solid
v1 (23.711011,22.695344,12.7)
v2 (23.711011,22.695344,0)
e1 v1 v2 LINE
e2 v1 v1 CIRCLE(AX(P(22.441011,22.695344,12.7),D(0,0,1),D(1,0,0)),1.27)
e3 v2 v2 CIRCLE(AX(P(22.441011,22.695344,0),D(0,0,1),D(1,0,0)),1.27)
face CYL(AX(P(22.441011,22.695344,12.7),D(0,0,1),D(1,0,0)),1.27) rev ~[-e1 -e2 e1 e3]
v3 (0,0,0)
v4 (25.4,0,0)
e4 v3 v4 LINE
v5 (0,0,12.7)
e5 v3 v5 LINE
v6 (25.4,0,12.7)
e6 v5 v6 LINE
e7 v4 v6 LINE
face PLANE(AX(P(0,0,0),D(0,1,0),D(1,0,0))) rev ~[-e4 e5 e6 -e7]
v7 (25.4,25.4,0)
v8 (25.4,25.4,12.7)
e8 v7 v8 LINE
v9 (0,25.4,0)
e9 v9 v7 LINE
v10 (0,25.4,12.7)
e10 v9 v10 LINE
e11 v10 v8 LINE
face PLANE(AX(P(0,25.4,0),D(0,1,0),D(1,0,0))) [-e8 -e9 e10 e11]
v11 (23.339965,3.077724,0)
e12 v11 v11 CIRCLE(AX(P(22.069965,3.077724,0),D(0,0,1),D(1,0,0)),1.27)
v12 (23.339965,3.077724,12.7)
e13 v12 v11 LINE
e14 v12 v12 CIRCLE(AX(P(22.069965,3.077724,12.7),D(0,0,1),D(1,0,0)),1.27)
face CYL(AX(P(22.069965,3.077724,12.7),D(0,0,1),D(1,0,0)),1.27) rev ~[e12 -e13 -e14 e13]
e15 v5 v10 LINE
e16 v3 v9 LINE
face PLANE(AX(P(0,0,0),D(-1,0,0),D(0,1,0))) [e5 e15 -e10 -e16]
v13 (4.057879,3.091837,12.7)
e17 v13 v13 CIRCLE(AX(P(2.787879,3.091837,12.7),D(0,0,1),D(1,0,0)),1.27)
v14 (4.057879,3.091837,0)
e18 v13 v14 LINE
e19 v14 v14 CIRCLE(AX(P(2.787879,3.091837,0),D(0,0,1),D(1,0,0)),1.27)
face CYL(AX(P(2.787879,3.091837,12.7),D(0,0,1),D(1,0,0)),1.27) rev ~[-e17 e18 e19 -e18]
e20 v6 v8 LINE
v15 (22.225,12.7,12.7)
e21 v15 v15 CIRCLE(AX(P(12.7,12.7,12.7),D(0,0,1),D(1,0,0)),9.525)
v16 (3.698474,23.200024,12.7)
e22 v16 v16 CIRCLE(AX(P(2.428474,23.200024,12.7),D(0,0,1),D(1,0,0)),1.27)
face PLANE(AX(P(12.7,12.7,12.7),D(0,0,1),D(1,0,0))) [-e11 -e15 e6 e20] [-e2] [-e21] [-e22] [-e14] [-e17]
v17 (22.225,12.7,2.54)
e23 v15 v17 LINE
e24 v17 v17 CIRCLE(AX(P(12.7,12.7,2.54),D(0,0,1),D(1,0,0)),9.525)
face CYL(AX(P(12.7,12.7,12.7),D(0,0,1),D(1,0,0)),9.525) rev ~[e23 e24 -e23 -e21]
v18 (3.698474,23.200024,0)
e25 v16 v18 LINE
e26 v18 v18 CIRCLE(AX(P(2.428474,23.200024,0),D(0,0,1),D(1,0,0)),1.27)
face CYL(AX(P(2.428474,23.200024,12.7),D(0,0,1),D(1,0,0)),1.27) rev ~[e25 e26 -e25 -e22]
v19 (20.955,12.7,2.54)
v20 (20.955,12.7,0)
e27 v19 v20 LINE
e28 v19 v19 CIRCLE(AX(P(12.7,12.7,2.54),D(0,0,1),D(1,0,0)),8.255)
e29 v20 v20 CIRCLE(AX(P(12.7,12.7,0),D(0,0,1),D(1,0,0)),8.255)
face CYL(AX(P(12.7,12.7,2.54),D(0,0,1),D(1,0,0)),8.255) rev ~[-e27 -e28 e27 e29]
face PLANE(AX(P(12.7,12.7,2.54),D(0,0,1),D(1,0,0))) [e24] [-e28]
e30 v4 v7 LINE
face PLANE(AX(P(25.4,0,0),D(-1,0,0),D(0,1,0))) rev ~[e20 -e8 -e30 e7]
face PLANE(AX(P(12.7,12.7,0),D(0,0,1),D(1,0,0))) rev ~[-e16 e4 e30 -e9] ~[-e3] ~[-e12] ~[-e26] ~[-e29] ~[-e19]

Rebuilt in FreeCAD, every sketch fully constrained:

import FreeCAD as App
import Part
import Sketcher
from FreeCAD import Vector
Q = App.Units.Quantity


def add_polygon(sketch, points):
    """Adds a closed chain of lines whose ends are joined by coincident constraints."""
    first, n = sketch.GeometryCount, len(points)
    for a, b in zip(points, points[1:] + points[:1]):
        sketch.addGeometry(Part.LineSegment(App.Vector(*a, 0), App.Vector(*b, 0)), False)
    for i in range(n):
        sketch.addConstraint(Sketcher.Constraint("Coincident", first + i, 2, first + (i + 1) % n, 1))

doc = App.newDocument("Part")
body = doc.addObject("PartDesign::Body", "Body")

# Sketch on XY plane
sketch1 = doc.addObject("Sketcher::SketchObject", "Sketch")
body.addObject(sketch1)
sketch1.AttachmentSupport = (doc.XY_Plane, [""])
sketch1.MapMode = "FlatFace"
add_polygon(sketch1, [(0, 25), (0, 0), (25, 0), (25, 25)])  # lines 0-3
sketch1.addConstraint([
    Sketcher.Constraint("Vertical", 0),
    Sketcher.Constraint("Horizontal", 1),
    Sketcher.Constraint("Vertical", 2),
    Sketcher.Constraint("Horizontal", 3),
    Sketcher.Constraint("Coincident", 0, 2, -1, 1),
    Sketcher.Constraint("Equal", 3, 0),
    Sketcher.Constraint("DistanceX", 1, 1, 1, 2, Q("1 in")),
])
pad1 = doc.addObject("PartDesign::Pad", "Pad")
body.addObject(pad1)
pad1.Profile = sketch1
pad1.Length = Q("0.5 in")

# Sketch on XY plane
sketch2 = doc.addObject("Sketcher::SketchObject", "Sketch001")
body.addObject(sketch2)
sketch2.AttachmentSupport = (doc.XY_Plane, [""])
sketch2.MapMode = "FlatFace"
sketch2.AttachmentOffset = App.Placement(Vector(0, 0, 0.5 * 25.4), App.Rotation())
sketch2.addGeometry(Part.Circle(Vector(13, 13, 0), Vector(0, 0, 1), 10), False)
sketch2.addConstraint([
    Sketcher.Constraint("Diameter", 0, Q("0.75 in")),
    Sketcher.Constraint("DistanceX", -1, 1, 0, 3, Q("0.5 in")),
    Sketcher.Constraint("DistanceY", -1, 1, 0, 3, Q("0.5 in")),
])
pocket1 = doc.addObject("PartDesign::Pocket", "Pocket")
body.addObject(pocket1)
pocket1.Profile = sketch2
pocket1.Length = Q("0.4 in")

# Sketch on XY plane
sketch3 = doc.addObject("Sketcher::SketchObject", "Sketch002")
body.addObject(sketch3)
sketch3.AttachmentSupport = (doc.XY_Plane, [""])
sketch3.MapMode = "FlatFace"
sketch3.AttachmentOffset = App.Placement(Vector(0, 0, 0.1 * 25.4), App.Rotation())
sketch3.addGeometry(Part.Circle(Vector(13, 13, 0), Vector(0, 0, 1), 8), False)
sketch3.addConstraint([
    Sketcher.Constraint("Diameter", 0, Q("0.65 in")),
    Sketcher.Constraint("DistanceX", -1, 1, 0, 3, Q("0.5 in")),
    Sketcher.Constraint("DistanceY", -1, 1, 0, 3, Q("0.5 in")),
])
pocket2 = doc.addObject("PartDesign::Pocket", "Pocket001")
body.addObject(pocket2)
pocket2.Profile = sketch3
pocket2.Type = "ThroughAll"

# Sketch on XY plane
sketch4 = doc.addObject("Sketcher::SketchObject", "Sketch003")
body.addObject(sketch4)
sketch4.AttachmentSupport = (doc.XY_Plane, [""])
sketch4.MapMode = "FlatFace"
sketch4.AttachmentOffset = App.Placement(Vector(0, 0, 0.5 * 25.4), App.Rotation())
sketch4.addGeometry(Part.Circle(Vector(2.8, 3.1, 0), Vector(0, 0, 1), 1.3), False)
sketch4.addConstraint([
    Sketcher.Constraint("Diameter", 0, Q("0.1 in")),
    Sketcher.Constraint("DistanceX", -1, 1, 0, 3, Q("2.787879 mm")),
    Sketcher.Constraint("DistanceY", -1, 1, 0, 3, Q("3.091837 mm")),
])
pocket3 = doc.addObject("PartDesign::Pocket", "Pocket002")
body.addObject(pocket3)
pocket3.Profile = sketch4
pocket3.Type = "ThroughAll"

# Sketch on XY plane
sketch5 = doc.addObject("Sketcher::SketchObject", "Sketch004")
body.addObject(sketch5)
sketch5.AttachmentSupport = (doc.XY_Plane, [""])
sketch5.MapMode = "FlatFace"
sketch5.AttachmentOffset = App.Placement(Vector(0, 0, 0.5 * 25.4), App.Rotation())
sketch5.addGeometry(Part.Circle(Vector(2.4, 23.2, 0), Vector(0, 0, 1), 1.3), False)
sketch5.addConstraint([
    Sketcher.Constraint("Diameter", 0, Q("0.1 in")),
    Sketcher.Constraint("DistanceX", -1, 1, 0, 3, Q("2.428474 mm")),
    Sketcher.Constraint("DistanceY", -1, 1, 0, 3, Q("23.200024 mm")),
])
pocket4 = doc.addObject("PartDesign::Pocket", "Pocket003")
body.addObject(pocket4)
pocket4.Profile = sketch5
pocket4.Type = "ThroughAll"

# Sketch on XY plane
sketch6 = doc.addObject("Sketcher::SketchObject", "Sketch005")
body.addObject(sketch6)
sketch6.AttachmentSupport = (doc.XY_Plane, [""])
sketch6.MapMode = "FlatFace"
sketch6.AttachmentOffset = App.Placement(Vector(0, 0, 0.5 * 25.4), App.Rotation())
sketch6.addGeometry(Part.Circle(Vector(22.1, 3.1, 0), Vector(0, 0, 1), 1.3), False)
sketch6.addConstraint([
    Sketcher.Constraint("Diameter", 0, Q("0.1 in")),
    Sketcher.Constraint("DistanceX", -1, 1, 0, 3, Q("22.069965 mm")),
    Sketcher.Constraint("DistanceY", -1, 1, 0, 3, Q("3.077724 mm")),
])
pocket5 = doc.addObject("PartDesign::Pocket", "Pocket004")
body.addObject(pocket5)
pocket5.Profile = sketch6
pocket5.Type = "ThroughAll"

# Sketch on XY plane
sketch7 = doc.addObject("Sketcher::SketchObject", "Sketch006")
body.addObject(sketch7)
sketch7.AttachmentSupport = (doc.XY_Plane, [""])
sketch7.MapMode = "FlatFace"
sketch7.AttachmentOffset = App.Placement(Vector(0, 0, 0.5 * 25.4), App.Rotation())
sketch7.addGeometry(Part.Circle(Vector(22.4, 22.7, 0), Vector(0, 0, 1), 1.3), False)
sketch7.addConstraint([
    Sketcher.Constraint("Diameter", 0, Q("0.1 in")),
    Sketcher.Constraint("DistanceX", -1, 1, 0, 3, Q("22.441011 mm")),
    Sketcher.Constraint("DistanceY", -1, 1, 0, 3, Q("22.695344 mm")),
])
pocket6 = doc.addObject("PartDesign::Pocket", "Pocket005")
body.addObject(pocket6)
pocket6.Profile = sketch7
pocket6.Type = "ThroughAll"

doc.recompute()
